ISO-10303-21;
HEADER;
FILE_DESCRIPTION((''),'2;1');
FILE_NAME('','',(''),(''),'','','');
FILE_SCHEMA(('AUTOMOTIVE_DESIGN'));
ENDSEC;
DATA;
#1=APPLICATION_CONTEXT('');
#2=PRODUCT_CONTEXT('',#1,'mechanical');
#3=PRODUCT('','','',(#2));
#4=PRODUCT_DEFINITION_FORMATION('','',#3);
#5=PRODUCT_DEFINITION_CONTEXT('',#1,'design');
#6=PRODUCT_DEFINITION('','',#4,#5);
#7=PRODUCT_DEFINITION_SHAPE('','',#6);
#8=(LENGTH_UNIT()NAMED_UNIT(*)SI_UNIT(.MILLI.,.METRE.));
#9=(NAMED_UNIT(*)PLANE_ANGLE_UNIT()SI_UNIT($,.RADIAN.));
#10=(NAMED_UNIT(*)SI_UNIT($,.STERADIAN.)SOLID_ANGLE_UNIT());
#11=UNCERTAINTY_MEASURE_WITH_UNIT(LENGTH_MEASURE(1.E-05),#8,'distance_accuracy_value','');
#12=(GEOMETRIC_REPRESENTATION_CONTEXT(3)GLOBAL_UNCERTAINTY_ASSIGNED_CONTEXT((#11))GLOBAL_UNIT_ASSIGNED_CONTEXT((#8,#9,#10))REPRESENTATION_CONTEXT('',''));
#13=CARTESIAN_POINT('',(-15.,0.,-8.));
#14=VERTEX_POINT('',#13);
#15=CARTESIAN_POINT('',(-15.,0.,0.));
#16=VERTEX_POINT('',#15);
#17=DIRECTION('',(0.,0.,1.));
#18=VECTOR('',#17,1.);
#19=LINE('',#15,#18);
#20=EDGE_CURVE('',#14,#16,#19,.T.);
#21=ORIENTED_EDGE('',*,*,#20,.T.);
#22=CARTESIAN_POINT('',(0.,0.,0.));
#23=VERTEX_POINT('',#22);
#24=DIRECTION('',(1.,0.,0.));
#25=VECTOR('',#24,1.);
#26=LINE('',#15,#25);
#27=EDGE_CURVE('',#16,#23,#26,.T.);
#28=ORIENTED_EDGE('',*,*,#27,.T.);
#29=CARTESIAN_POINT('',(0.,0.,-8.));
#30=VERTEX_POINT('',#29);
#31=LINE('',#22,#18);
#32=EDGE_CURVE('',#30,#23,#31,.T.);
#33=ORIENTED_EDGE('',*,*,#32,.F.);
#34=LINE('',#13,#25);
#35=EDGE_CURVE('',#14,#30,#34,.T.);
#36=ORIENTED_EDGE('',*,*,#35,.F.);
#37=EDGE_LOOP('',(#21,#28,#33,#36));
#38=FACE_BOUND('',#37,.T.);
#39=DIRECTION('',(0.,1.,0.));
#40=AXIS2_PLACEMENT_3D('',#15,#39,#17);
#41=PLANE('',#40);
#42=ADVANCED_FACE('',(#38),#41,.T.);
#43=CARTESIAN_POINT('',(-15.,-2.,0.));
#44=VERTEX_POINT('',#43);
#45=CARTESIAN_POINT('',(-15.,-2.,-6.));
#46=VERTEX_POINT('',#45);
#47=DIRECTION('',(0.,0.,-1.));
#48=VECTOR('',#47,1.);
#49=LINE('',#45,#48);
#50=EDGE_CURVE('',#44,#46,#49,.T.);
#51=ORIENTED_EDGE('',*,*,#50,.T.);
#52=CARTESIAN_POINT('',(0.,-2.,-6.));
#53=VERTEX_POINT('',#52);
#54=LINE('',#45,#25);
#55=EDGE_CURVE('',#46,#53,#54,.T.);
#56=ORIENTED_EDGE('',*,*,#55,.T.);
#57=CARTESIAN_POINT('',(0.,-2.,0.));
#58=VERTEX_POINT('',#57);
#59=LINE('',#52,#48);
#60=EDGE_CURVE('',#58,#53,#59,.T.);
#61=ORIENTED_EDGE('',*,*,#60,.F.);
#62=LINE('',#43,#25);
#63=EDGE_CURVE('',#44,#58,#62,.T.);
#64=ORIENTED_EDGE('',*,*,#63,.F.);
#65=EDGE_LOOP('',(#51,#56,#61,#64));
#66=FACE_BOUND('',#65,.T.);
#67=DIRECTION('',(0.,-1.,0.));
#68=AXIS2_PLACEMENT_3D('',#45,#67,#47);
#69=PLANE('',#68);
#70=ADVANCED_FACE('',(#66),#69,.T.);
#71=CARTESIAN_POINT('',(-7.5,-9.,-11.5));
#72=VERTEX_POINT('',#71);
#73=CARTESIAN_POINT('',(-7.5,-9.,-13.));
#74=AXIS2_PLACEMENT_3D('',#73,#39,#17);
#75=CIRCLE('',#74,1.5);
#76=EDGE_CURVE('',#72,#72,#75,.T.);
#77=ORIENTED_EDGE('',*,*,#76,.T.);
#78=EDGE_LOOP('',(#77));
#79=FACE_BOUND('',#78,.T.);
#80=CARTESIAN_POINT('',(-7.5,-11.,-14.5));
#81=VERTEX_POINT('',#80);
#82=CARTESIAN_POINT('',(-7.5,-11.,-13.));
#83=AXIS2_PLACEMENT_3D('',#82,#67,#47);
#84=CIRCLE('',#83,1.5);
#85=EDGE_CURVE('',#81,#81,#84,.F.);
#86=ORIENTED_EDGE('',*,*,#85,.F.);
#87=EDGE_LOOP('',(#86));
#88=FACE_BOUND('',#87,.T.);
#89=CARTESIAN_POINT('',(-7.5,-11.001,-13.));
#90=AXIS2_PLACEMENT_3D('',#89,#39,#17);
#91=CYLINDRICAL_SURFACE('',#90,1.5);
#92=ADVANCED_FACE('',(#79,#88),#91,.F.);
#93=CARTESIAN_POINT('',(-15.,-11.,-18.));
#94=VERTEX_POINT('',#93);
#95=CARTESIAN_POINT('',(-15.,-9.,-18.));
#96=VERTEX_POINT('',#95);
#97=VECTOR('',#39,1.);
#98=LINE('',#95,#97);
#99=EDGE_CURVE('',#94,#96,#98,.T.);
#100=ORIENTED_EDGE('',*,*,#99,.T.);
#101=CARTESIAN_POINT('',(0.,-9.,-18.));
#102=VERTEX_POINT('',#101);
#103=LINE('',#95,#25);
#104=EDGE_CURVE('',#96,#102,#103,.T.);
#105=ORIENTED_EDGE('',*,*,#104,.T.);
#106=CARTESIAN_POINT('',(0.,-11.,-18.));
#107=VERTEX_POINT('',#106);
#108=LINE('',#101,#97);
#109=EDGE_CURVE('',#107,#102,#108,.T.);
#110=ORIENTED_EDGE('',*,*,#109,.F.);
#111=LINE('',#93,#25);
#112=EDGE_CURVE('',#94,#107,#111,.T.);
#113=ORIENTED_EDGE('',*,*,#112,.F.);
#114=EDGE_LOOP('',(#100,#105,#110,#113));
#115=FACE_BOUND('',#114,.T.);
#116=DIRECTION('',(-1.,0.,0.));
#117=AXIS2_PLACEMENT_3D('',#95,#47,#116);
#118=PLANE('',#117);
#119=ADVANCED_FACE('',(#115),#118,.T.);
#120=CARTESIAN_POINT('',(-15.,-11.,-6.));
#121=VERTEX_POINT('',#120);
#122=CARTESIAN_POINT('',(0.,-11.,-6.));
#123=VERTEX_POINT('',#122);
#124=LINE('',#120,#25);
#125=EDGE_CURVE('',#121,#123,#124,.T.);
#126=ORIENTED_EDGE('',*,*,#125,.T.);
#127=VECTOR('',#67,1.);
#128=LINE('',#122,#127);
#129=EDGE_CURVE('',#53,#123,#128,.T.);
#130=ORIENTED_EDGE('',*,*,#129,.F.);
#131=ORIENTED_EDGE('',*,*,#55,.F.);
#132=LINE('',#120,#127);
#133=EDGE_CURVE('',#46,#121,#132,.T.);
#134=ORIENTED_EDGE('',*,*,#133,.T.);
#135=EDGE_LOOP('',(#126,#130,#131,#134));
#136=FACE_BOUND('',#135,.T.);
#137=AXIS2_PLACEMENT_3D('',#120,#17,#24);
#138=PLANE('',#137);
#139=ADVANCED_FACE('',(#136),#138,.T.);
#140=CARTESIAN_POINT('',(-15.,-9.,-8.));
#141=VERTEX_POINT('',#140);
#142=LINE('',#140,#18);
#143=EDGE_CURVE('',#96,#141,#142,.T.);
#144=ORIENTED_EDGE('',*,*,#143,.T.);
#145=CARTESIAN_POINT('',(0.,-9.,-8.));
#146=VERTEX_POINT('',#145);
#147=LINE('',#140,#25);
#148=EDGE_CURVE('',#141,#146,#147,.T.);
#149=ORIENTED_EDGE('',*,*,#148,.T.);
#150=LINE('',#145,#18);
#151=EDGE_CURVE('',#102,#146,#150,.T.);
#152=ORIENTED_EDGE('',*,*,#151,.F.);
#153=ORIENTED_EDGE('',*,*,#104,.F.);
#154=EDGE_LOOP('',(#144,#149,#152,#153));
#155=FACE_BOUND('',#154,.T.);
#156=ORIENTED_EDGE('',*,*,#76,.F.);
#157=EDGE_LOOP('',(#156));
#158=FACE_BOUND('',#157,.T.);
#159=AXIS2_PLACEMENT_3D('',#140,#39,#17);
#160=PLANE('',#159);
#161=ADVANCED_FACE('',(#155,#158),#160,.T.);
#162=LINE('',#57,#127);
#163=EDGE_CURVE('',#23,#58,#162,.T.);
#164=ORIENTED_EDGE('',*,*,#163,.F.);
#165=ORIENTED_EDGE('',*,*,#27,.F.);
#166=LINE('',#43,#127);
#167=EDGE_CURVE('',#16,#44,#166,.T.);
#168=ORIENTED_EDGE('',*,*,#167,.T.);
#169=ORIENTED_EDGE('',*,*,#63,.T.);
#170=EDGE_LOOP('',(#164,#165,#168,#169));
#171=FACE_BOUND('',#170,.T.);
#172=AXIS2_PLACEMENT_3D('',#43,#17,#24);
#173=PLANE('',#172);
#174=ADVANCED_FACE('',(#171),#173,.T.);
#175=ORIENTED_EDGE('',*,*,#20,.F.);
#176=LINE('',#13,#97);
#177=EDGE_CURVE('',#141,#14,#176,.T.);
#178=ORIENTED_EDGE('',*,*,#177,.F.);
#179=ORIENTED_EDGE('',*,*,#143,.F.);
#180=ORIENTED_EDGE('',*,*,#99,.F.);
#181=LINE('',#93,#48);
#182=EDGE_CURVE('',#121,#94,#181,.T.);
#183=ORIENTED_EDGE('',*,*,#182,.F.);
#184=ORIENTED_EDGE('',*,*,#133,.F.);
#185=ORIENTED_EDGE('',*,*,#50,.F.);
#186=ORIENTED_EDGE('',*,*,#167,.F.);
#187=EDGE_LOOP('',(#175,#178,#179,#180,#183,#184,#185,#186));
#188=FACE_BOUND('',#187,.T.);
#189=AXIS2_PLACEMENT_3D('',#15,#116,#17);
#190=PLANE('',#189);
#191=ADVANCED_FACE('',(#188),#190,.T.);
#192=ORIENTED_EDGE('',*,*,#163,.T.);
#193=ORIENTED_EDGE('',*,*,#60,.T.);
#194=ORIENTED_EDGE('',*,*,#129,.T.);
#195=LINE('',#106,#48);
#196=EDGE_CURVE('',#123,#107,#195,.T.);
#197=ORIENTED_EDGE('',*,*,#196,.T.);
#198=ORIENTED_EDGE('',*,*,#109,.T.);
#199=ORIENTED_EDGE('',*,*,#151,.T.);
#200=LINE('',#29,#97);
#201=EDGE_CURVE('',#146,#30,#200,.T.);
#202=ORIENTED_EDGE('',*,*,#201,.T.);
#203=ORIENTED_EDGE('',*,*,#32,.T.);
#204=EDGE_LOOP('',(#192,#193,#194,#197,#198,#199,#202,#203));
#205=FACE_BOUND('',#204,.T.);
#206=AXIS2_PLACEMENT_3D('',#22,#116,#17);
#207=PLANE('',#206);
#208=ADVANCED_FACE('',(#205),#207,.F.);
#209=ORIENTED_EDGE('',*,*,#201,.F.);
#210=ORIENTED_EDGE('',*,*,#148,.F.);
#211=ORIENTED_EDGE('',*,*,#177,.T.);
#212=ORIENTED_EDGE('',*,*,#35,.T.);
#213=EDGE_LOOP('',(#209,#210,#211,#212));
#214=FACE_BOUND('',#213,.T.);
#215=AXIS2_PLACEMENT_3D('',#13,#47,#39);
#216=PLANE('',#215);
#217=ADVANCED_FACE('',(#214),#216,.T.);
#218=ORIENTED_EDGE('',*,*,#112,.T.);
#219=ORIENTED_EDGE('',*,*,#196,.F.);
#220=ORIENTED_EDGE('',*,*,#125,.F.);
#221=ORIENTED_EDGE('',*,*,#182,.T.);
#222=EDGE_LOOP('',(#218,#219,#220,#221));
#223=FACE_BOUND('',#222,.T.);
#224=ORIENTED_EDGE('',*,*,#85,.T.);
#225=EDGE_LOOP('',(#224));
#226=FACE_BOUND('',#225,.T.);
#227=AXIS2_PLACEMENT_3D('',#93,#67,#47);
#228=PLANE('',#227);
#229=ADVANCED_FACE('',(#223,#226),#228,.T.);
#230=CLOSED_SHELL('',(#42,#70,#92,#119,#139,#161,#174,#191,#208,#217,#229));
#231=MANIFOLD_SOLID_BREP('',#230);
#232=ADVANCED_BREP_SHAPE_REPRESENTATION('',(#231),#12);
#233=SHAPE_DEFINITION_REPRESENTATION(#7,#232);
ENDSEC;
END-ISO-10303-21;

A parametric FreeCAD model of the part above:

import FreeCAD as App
import Part
import Sketcher

doc = App.newDocument("Part")
body = doc.addObject("PartDesign::Body", "Body")

# Sketch on YZ plane
sketch1 = body.newObject("Sketcher::SketchObject", "Sketch")
sketch1.AttachmentSupport = (doc.getObject("YZ_Plane"), [""])
sketch1.MapMode = "FlatFace"
sketch1.addGeometry([
    Part.LineSegment(App.Vector(0, -8, 0), App.Vector(0, 0, 0)),  # 0
    Part.LineSegment(App.Vector(0, 0, 0), App.Vector(-2, 0, 0)),  # 1
    Part.LineSegment(App.Vector(-2, 0, 0), App.Vector(-2, -6, 0)),  # 2
    Part.LineSegment(App.Vector(-2, -6, 0), App.Vector(-11, -6, 0)),  # 3
    Part.LineSegment(App.Vector(-11, -6, 0), App.Vector(-11, -18, 0)),  # 4
    Part.LineSegment(App.Vector(-11, -18, 0), App.Vector(-9, -18, 0)),  # 5
    Part.LineSegment(App.Vector(-9, -18, 0), App.Vector(-9, -8, 0)),  # 6
    Part.LineSegment(App.Vector(-9, -8, 0), App.Vector(0, -8, 0)),  # 7
], False)
sketch1.addConstraint([
    Sketcher.Constraint("Coincident", 0, 2, 1, 1),
    Sketcher.Constraint("Coincident", 1, 2, 2, 1),
    Sketcher.Constraint("Coincident", 2, 2, 3, 1),
    Sketcher.Constraint("Coincident", 3, 2, 4, 1),
    Sketcher.Constraint("Coincident", 4, 2, 5, 1),
    Sketcher.Constraint("Coincident", 5, 2, 6, 1),
    Sketcher.Constraint("Coincident", 6, 2, 7, 1),
    Sketcher.Constraint("Coincident", 7, 2, 0, 1),
    Sketcher.Constraint("Vertical", 0),
    Sketcher.Constraint("Horizontal", 1),
    Sketcher.Constraint("Vertical", 2),
    Sketcher.Constraint("Horizontal", 3),
    Sketcher.Constraint("Vertical", 4),
    Sketcher.Constraint("Horizontal", 5),
    Sketcher.Constraint("Vertical", 6),
    Sketcher.Constraint("Horizontal", 7),
    Sketcher.Constraint("Coincident", 0, 2, -1, 1),
    Sketcher.Constraint("Equal", 1, 5),
    Sketcher.Constraint("DistanceX", 1, 2, 1, 1, 2.0),
    Sketcher.Constraint("DistanceX", 3, 2, 3, 1, 9.0),
    Sketcher.Constraint("DistanceY", 0, 1, 0, 2, 8.0),
    Sketcher.Constraint("DistanceY", 2, 2, 2, 1, 6.0),
    Sketcher.Constraint("DistanceY", 4, 2, 4, 1, 12.0),
])
pad1 = body.newObject("PartDesign::Pad", "Pad")
pad1.Profile = sketch1
pad1.Length = 15
pad1.Reversed = True

# Sketch on XZ plane
sketch2 = body.newObject("Sketcher::SketchObject", "Sketch001")
sketch2.AttachmentSupport = (doc.getObject("XZ_Plane"), [""])
sketch2.MapMode = "FlatFace"
sketch2.AttachmentOffset = App.Placement(App.Vector(0, 0, 9), App.Rotation())
sketch2.addGeometry(Part.Circle(App.Vector(-7.5, -13, 0), App.Vector(0, 0, 1), 1.5), False)
sketch2.addConstraint([
    Sketcher.Constraint("Diameter", 0, 3.0),
    Sketcher.Constraint("DistanceY", 0, 3, -1, 1, 13.0),
    Sketcher.Constraint("DistanceX", 0, 3, -1, 1, 7.5),
])
pocket1 = body.newObject("PartDesign::Pocket", "Pocket")
pocket1.Profile = sketch2
pocket1.Type = "UpToFirst"
pocket1.Reversed = True

doc.recompute()
